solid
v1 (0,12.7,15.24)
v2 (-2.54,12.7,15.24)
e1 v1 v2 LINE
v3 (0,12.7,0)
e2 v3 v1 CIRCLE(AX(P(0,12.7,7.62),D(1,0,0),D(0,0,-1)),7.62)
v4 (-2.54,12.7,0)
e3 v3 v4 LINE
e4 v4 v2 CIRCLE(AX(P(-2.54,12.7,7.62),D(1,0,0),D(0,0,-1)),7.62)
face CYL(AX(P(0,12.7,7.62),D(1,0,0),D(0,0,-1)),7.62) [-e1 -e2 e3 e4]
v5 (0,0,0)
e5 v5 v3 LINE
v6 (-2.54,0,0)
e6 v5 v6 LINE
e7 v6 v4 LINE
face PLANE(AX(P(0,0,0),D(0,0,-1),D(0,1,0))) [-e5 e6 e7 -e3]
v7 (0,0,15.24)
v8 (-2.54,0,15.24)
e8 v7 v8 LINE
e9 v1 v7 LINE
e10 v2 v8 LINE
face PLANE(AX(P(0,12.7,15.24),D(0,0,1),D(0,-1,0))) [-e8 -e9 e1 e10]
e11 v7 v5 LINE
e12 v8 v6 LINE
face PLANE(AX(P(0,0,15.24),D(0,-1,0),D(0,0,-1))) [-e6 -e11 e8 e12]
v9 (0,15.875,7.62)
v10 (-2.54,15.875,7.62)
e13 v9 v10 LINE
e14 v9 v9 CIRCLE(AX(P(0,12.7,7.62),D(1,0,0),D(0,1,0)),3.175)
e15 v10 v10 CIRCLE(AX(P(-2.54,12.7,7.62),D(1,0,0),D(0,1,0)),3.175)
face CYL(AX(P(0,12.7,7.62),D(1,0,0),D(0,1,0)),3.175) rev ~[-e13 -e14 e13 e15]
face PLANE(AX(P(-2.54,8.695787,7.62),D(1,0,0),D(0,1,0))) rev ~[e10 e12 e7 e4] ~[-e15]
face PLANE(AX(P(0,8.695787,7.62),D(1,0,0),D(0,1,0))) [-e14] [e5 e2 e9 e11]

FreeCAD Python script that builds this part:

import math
import FreeCAD as App
import Part
import Sketcher
from FreeCAD import Vector
Q = App.Units.Quantity

doc = App.newDocument("Part")
params = doc.addObject("Spreadsheet::Sheet", "Params")
for row, (alias, value) in enumerate([
    ("sketch1_radius", "0.3 in"),
    ("sketch1_diameter", "0.25 in"),
    ("sketch1_width", "0.5 in"),
    ("pad1_length", "0.1 in"),
], start=1):
    params.set(f"A{row}", alias)
    params.set(f"B{row}", "=" + value)
    params.setAlias(f"B{row}", alias)

body = doc.addObject("PartDesign::Body", "Body")

# Sketch on YZ plane
sketch1 = body.newObject("Sketcher::SketchObject", "Sketch")
sketch1.AttachmentSupport = (doc.getObject("YZ_Plane"), [""])
sketch1.MapMode = "FlatFace"
sketch1.addGeometry([
    Part.LineSegment(Vector(0, 15.24, 0), Vector(0, 0, 0)),  # 0
    Part.LineSegment(Vector(0, 0, 0), Vector(12.7, 0, 0)),  # 1
    Part.ArcOfCircle(Part.Circle(Vector(12.7, 7.62, 0), Vector(0, 0, 1), 7.62), math.radians(-90), math.radians(90)),  # 2
    Part.LineSegment(Vector(12.7, 15.24, 0), Vector(0, 15.24, 0)),  # 3
    Part.Circle(Vector(12.7, 7.62, 0), Vector(0, 0, 1), 3.175),  # 4
], False)
sketch1.addConstraint([
    Sketcher.Constraint("Coincident", 0, 2, 1, 1),
    Sketcher.Constraint("Tangent", 1, 2, 2, 1),
    Sketcher.Constraint("Tangent", 2, 2, 3, 1),
    Sketcher.Constraint("Coincident", 3, 2, 0, 1),
    Sketcher.Constraint("Vertical", 0),
    Sketcher.Constraint("Horizontal", 1),
    Sketcher.Constraint("Horizontal", 3),
    Sketcher.Constraint("Coincident", 0, 2, -1, 1),
    Sketcher.Constraint("Coincident", 4, 3, 2, 3),
    Sketcher.Constraint("Radius", 2, Q("0.3 in")),
    Sketcher.Constraint("Diameter", 4, Q("0.25 in")),
    Sketcher.Constraint("DistanceX", 1, 1, 1, 2, Q("0.5 in")),
])
sketch1.setExpression("Constraints[9]", "Params.sketch1_radius")
sketch1.setExpression("Constraints[10]", "Params.sketch1_diameter")
sketch1.setExpression("Constraints[11]", "Params.sketch1_width")
pad1 = body.newObject("PartDesign::Pad", "Pad")
pad1.Profile = sketch1
pad1.setExpression("Length", "Params.pad1_length")
pad1.Reversed = True

doc.recompute()
